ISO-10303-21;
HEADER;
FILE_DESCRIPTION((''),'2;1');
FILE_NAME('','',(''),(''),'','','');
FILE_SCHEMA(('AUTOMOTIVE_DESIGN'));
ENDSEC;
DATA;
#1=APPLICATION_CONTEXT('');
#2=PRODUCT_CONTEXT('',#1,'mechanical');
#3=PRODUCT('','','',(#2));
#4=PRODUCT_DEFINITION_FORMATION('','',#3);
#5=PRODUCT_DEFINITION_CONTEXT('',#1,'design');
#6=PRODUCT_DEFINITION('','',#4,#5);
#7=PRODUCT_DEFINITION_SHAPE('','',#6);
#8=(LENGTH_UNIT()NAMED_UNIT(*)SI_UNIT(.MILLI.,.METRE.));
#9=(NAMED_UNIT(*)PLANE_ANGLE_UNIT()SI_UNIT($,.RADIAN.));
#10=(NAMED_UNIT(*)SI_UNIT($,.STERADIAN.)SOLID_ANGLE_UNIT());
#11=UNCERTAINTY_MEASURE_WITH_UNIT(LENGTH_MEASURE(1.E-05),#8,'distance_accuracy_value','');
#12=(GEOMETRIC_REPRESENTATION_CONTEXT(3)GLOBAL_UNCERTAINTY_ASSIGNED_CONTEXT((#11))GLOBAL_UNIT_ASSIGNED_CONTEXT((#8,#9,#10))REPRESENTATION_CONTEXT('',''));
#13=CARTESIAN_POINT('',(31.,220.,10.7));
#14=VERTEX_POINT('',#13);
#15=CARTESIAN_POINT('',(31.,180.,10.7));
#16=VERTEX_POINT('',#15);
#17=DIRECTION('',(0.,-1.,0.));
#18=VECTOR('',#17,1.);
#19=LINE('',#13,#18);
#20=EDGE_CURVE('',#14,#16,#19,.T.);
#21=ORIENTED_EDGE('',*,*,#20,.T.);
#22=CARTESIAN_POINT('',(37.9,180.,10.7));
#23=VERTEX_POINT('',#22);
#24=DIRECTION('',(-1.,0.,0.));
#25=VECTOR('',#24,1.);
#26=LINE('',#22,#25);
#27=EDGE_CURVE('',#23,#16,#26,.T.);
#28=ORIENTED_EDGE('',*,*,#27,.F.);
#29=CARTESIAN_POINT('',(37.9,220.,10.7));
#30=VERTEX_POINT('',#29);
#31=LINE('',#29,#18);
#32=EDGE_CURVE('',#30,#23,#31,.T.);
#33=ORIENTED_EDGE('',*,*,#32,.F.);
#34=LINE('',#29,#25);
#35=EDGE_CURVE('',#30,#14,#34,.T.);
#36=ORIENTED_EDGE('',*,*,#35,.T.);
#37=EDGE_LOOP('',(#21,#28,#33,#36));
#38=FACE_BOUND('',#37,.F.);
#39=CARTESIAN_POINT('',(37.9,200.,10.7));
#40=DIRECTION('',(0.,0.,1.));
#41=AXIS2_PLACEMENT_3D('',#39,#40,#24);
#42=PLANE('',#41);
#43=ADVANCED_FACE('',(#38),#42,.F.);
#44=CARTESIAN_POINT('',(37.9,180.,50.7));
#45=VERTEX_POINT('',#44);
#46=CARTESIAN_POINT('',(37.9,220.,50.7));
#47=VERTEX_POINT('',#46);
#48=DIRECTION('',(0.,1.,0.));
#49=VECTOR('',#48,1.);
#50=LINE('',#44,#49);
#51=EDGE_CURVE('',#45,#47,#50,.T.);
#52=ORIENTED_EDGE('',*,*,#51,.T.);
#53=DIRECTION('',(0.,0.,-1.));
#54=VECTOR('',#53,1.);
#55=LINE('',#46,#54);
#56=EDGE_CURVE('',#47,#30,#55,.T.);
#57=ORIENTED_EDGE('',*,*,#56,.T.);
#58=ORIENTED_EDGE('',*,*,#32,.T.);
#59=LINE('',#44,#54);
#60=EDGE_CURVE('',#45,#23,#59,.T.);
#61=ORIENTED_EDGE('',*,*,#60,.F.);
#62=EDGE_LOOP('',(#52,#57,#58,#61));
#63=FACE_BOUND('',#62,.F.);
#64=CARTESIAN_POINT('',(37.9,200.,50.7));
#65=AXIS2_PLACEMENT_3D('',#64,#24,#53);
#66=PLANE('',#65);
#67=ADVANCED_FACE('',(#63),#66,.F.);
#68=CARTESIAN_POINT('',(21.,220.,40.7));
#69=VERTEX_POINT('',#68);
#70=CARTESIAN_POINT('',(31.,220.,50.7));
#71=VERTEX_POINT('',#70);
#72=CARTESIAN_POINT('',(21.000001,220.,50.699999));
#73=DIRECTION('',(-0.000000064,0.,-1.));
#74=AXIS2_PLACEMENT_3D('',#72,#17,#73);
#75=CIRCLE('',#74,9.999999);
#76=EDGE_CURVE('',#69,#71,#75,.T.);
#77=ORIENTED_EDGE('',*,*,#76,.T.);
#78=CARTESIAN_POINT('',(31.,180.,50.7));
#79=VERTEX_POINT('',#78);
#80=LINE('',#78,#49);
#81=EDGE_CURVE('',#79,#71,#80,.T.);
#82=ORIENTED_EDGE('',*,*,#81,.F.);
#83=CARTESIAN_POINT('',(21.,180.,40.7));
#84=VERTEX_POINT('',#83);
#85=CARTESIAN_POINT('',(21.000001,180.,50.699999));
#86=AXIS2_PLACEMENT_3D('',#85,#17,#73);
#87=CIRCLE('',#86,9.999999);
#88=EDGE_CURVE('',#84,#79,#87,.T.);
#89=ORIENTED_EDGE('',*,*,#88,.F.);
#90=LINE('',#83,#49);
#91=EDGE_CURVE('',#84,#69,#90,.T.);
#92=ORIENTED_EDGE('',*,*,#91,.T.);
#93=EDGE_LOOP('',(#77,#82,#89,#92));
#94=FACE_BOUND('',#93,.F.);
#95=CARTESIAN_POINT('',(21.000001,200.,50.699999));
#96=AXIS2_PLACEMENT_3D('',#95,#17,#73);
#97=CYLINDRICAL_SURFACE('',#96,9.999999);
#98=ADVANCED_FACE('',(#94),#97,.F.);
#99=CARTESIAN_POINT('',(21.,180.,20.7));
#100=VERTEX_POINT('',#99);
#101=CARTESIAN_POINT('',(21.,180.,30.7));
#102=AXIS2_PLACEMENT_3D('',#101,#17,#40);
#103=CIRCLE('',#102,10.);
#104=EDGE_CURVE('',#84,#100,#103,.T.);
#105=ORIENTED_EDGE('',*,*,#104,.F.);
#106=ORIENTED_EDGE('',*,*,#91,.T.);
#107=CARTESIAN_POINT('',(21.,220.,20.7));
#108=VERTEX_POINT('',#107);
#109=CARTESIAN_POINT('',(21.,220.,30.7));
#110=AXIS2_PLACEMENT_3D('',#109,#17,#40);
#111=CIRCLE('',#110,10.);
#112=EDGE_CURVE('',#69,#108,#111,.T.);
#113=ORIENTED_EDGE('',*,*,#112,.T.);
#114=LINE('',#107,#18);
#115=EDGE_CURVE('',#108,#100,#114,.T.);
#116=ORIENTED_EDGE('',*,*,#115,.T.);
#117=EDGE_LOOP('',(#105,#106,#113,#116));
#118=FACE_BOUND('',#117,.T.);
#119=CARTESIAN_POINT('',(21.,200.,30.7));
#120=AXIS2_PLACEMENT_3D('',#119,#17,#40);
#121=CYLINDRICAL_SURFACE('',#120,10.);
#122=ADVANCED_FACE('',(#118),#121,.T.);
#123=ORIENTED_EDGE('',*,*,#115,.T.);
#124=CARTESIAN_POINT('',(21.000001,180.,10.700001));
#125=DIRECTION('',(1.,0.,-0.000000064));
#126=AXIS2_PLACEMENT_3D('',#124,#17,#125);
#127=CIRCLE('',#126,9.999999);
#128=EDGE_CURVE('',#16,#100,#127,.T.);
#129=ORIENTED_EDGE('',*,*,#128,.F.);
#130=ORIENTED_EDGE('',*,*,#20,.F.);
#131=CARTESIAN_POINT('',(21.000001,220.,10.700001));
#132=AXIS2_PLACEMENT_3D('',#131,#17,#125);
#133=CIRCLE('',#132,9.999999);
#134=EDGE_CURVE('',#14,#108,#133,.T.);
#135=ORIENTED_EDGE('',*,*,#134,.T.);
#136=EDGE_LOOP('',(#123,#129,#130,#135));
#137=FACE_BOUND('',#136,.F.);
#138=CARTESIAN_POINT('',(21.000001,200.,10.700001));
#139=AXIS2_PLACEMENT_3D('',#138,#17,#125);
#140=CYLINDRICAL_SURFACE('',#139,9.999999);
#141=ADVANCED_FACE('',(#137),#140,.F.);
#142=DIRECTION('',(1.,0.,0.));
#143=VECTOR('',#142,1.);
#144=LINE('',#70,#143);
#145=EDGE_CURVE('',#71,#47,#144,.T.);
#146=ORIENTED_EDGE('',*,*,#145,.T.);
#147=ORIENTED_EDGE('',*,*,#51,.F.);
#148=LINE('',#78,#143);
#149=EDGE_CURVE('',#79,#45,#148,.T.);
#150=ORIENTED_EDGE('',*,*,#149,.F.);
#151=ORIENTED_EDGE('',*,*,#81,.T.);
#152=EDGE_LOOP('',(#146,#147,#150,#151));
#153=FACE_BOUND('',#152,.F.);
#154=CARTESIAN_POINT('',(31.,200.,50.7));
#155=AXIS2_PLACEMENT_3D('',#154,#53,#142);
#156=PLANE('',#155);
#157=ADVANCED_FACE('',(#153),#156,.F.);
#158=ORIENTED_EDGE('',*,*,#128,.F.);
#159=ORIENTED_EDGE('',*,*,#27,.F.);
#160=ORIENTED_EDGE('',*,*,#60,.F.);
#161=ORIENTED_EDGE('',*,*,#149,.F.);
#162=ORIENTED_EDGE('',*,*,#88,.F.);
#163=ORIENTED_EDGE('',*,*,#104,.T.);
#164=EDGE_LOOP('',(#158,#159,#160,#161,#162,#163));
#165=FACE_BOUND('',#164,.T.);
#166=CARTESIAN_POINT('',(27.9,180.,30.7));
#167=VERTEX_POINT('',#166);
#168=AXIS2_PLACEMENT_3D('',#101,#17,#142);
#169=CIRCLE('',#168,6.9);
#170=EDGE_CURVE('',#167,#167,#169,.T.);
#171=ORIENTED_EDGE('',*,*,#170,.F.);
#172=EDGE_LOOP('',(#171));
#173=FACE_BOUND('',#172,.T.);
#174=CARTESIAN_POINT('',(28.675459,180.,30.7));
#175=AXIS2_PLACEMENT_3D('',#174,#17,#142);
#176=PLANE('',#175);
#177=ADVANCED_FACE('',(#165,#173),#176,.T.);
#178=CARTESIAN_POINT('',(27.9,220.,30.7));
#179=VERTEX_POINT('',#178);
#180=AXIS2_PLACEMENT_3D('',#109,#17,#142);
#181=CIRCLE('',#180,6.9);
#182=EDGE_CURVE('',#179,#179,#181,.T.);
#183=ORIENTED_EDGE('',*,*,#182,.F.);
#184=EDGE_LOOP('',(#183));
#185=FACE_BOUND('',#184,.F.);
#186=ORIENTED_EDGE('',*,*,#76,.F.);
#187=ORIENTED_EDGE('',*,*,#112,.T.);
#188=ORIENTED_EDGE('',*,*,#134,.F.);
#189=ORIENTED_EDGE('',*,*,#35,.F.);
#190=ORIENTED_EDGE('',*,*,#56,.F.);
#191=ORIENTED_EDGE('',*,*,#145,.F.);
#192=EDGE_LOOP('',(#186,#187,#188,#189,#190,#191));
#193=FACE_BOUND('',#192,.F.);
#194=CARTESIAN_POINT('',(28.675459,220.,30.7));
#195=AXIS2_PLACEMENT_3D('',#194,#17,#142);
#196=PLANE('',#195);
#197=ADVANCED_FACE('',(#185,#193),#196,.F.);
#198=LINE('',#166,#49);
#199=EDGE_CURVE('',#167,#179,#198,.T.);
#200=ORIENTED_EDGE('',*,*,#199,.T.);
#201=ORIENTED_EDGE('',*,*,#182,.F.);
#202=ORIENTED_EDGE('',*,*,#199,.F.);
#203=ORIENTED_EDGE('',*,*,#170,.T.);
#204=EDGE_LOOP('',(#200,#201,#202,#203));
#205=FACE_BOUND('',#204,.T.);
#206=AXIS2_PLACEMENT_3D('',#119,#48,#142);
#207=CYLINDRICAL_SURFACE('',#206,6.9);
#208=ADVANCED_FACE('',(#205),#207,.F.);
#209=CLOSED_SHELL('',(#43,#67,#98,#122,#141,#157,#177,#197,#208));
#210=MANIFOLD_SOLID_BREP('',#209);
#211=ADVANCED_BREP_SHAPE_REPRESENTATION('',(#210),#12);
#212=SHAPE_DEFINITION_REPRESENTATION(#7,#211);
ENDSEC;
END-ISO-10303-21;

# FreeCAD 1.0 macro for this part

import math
import FreeCAD as App
import Part
import Sketcher

V = App.Vector
Q = App.Units.Quantity

doc = App.newDocument("Part")
body = doc.addObject("PartDesign::Body", "Body")

# Sketch on XZ plane
sketch1 = body.newObject("Sketcher::SketchObject", "Sketch")
sketch1.AttachmentSupport = (doc.getObject("XZ_Plane"), [""])
sketch1.MapMode = "FlatFace"
sketch1.AttachmentOffset = App.Placement(V(0, 0, -200), App.Rotation())
sketch1.addGeometry([
    Part.ArcOfCircle(Part.Circle(V(21, 30.7, 0), V(0, 0, 1), 10), math.radians(90), math.radians(270)),  # 0
    Part.ArcOfCircle(Part.Circle(V(21.000001, 10.700001, 0), V(0, 0, 1), 9.999999), math.radians(-0.000004), math.radians(90.000004)),  # 1
    Part.LineSegment(V(31, 10.7, 0), V(37.9, 10.7, 0)),  # 2
    Part.LineSegment(V(37.9, 10.7, 0), V(37.9, 50.7, 0)),  # 3
    Part.LineSegment(V(37.9, 50.7, 0), V(31, 50.7, 0)),  # 4
    Part.ArcOfCircle(Part.Circle(V(21.000001, 50.699999, 0), V(0, 0, 1), 9.999999), math.radians(-90.000004), math.radians(0.000004)),  # 5
    Part.Circle(V(21, 30.7, 0), V(0, 0, 1), 6.9),  # 6
], False)
sketch1.addConstraint([
    Sketcher.Constraint("Tangent", 0, 2, 1, 2),
    Sketcher.Constraint("Coincident", 1, 1, 2, 1),
    Sketcher.Constraint("Coincident", 2, 2, 3, 1),
    Sketcher.Constraint("Coincident", 3, 2, 4, 1),
    Sketcher.Constraint("Coincident", 4, 2, 5, 2),
    Sketcher.Constraint("Tangent", 5, 1, 0, 1),
    Sketcher.Constraint("Horizontal", 2),
    Sketcher.Constraint("Vertical", 3),
    Sketcher.Constraint("Horizontal", 4),
    Sketcher.Constraint("Coincident", 6, 3, 0, 3),
    Sketcher.Constraint("Equal", 0, 1),
    Sketcher.Constraint("Equal", 1, 5),
    Sketcher.Constraint("Horizontal", 5, 3, 3, 2),
    Sketcher.Constraint("Vertical", 0, 3, 1, 3),
    Sketcher.Constraint("Vertical", 1, 3, 5, 3),
    Sketcher.Constraint("Radius", 0, Q("10 mm")),
    Sketcher.Constraint("Diameter", 6, Q("13.8 mm")),
    Sketcher.Constraint("DistanceY", 3, 1, 3, 2, Q("40 mm")),
    Sketcher.Constraint("DistanceX", 2, 1, 2, 2, Q("6.9 mm")),
    Sketcher.Constraint("DistanceX", -1, 1, 0, 3, Q("21 mm")),
    Sketcher.Constraint("DistanceY", -1, 1, 0, 3, Q("30.7 mm")),
])
pad1 = body.newObject("PartDesign::Pad", "Pad")
pad1.Profile = sketch1
pad1.Length = 40
pad1.Midplane = True

doc.recompute()
